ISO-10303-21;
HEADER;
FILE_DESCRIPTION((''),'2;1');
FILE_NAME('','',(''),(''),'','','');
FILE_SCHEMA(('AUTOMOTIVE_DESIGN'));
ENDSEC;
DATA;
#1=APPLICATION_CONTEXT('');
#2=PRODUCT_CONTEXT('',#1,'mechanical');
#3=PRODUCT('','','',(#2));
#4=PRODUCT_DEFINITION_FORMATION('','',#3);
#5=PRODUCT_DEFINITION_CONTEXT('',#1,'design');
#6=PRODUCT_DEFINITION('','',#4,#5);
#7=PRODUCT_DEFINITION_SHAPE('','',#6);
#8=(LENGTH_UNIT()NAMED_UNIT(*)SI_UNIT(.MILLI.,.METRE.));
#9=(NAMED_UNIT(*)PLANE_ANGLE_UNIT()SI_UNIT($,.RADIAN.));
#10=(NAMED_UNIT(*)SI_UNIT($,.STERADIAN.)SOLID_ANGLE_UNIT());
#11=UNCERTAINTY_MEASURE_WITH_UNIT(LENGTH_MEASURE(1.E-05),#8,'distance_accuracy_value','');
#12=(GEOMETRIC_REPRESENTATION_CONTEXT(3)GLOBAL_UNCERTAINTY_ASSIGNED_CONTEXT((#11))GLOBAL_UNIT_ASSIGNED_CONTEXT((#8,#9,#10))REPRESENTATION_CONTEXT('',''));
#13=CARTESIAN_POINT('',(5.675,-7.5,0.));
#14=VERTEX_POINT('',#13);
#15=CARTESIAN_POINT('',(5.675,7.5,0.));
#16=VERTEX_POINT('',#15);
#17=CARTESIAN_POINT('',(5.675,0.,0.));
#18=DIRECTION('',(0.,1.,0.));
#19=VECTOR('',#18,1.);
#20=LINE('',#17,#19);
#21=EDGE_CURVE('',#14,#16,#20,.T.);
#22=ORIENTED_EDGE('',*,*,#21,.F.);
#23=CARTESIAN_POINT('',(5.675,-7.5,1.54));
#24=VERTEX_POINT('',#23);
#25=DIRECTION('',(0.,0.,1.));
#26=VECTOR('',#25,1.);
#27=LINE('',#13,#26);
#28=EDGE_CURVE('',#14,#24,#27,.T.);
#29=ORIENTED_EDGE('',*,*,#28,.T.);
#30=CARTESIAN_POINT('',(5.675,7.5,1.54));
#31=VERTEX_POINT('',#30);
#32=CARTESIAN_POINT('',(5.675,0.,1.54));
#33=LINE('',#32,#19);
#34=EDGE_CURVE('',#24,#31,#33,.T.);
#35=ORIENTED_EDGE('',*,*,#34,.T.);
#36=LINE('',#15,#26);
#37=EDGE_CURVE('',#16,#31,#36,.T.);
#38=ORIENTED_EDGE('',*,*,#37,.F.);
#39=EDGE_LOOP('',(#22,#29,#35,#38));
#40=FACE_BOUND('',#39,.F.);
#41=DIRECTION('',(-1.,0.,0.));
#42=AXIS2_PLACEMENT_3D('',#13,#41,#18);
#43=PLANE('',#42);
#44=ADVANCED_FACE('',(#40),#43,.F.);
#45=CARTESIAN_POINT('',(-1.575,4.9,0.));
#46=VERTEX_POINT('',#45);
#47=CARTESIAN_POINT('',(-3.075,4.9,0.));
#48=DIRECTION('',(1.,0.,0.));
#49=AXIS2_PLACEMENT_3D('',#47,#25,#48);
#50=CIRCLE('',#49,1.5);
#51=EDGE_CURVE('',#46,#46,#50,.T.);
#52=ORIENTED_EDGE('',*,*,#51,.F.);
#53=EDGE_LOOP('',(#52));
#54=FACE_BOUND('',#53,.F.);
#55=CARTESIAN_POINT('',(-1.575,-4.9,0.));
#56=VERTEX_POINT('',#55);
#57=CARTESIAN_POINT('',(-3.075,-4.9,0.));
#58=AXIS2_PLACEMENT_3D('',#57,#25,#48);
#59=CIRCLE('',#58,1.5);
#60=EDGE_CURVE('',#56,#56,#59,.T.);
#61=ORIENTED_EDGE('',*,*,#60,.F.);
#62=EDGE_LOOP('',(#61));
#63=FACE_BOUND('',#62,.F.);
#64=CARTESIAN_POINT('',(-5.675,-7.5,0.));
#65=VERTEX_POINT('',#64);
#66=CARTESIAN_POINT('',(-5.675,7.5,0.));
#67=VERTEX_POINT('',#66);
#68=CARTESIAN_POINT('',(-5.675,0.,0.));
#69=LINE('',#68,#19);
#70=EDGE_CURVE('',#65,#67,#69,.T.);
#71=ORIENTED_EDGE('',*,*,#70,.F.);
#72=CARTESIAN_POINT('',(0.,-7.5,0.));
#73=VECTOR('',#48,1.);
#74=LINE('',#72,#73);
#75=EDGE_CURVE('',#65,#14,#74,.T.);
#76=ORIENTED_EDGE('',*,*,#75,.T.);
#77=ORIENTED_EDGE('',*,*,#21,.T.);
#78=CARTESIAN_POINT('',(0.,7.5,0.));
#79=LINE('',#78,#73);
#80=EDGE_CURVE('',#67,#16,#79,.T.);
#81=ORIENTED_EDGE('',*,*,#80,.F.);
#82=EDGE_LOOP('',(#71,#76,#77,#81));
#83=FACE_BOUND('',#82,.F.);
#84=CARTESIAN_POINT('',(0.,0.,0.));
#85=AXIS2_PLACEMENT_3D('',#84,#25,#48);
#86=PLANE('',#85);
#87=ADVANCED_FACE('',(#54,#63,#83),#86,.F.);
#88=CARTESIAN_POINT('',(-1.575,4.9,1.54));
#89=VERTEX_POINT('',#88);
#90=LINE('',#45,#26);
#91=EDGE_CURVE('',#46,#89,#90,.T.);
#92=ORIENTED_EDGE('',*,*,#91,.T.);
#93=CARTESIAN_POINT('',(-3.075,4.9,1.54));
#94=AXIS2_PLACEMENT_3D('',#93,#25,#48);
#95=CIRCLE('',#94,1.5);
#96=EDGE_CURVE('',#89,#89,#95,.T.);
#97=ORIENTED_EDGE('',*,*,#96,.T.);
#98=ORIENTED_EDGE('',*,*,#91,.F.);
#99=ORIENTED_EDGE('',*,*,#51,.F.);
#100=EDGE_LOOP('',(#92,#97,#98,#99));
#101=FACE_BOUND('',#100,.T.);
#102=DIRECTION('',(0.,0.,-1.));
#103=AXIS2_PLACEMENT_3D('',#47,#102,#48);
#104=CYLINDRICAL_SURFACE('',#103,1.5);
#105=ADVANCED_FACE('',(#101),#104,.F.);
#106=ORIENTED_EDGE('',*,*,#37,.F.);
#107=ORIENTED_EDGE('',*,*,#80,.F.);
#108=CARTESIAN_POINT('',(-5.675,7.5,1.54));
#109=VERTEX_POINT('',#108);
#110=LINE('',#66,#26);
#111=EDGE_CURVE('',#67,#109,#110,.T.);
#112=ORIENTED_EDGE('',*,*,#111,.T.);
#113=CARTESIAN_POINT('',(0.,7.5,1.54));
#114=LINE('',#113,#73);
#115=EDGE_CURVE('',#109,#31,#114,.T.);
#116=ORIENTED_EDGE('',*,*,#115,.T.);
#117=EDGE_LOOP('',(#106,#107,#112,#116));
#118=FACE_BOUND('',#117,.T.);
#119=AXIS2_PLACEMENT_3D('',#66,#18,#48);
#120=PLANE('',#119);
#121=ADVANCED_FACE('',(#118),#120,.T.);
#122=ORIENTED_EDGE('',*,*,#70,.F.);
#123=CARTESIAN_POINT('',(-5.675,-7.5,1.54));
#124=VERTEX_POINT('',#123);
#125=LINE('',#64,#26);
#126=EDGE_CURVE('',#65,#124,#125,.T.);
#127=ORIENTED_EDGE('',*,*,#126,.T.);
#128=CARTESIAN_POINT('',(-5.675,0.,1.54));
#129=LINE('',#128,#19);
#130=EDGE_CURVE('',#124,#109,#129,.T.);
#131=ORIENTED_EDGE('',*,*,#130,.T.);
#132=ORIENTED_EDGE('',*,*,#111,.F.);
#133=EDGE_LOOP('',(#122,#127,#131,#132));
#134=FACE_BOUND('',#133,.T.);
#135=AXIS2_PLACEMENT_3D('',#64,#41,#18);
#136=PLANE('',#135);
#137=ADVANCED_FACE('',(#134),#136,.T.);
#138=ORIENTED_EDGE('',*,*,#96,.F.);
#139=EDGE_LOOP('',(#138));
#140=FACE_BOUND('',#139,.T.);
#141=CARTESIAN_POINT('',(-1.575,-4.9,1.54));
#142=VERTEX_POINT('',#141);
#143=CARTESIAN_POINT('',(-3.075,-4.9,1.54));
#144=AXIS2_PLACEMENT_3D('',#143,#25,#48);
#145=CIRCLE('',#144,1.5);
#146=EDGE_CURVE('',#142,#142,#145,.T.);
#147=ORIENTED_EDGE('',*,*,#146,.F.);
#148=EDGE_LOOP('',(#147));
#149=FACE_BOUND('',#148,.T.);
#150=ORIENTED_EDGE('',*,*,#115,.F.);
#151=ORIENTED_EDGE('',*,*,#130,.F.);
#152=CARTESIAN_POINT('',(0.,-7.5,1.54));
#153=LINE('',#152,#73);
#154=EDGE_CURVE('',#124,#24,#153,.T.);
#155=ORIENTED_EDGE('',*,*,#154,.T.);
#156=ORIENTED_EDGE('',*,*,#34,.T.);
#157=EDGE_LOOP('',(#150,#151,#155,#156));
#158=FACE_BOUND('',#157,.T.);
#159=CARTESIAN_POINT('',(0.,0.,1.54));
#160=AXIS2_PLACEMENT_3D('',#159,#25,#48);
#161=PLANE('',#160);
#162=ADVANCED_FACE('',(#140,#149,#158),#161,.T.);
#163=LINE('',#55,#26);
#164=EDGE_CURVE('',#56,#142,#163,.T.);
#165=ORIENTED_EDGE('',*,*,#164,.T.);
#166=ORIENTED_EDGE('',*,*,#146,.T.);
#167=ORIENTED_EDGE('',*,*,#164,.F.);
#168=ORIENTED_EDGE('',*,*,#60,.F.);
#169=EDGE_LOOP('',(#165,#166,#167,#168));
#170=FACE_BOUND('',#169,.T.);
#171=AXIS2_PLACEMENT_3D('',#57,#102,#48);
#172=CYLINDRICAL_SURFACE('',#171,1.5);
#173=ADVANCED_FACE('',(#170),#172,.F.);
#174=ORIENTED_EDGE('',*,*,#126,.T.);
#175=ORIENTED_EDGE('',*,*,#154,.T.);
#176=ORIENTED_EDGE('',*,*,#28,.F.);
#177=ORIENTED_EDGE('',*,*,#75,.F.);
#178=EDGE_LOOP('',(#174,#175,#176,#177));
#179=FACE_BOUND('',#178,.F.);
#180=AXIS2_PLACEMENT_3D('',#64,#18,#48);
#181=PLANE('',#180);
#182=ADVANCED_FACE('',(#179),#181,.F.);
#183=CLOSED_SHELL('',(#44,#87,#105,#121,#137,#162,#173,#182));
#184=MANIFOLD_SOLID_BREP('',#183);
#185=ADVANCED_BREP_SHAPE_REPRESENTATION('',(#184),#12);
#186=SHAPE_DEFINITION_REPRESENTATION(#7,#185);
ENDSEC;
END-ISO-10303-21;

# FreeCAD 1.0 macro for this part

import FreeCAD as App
import Part
import Sketcher

V = App.Vector


def add_polygon(sketch, points):
    """Adds a closed chain of lines whose ends are joined by coincident constraints."""
    first, n = sketch.GeometryCount, len(points)
    for a, b in zip(points, points[1:] + points[:1]):
        sketch.addGeometry(Part.LineSegment(App.Vector(*a, 0), App.Vector(*b, 0)), False)
    for i in range(n):
        sketch.addConstraint(Sketcher.Constraint("Coincident", first + i, 2, first + (i + 1) % n, 1))

doc = App.newDocument("Part")
body = doc.addObject("PartDesign::Body", "Body")

# Sketch on XY plane
sketch1 = doc.addObject("Sketcher::SketchObject", "Sketch")
body.addObject(sketch1)
sketch1.AttachmentSupport = (doc.XY_Plane, [""])
sketch1.MapMode = "FlatFace"
add_polygon(sketch1, [(-5.7, 7.5), (-5.7, -7.5), (5.7, -7.5), (5.7, 7.5)])  # lines 0-3
sketch1.addGeometry(Part.Circle(V(-3.1, -4.9, 0), V(0, 0, 1), 1.5), False)  # 4
sketch1.addGeometry(Part.Circle(V(-3.1, 4.9, 0), V(0, 0, 1), 1.5), False)  # 5
sketch1.addConstraint([
    Sketcher.Constraint("Vertical", 0),
    Sketcher.Constraint("Horizontal", 1),
    Sketcher.Constraint("Vertical", 2),
    Sketcher.Constraint("Horizontal", 3),
    Sketcher.Constraint("Equal", 4, 5),
    Sketcher.Constraint("Symmetric", 0, 2, 2, 2, -1, 1),
    Sketcher.Constraint("Symmetric", 4, 3, 5, 3, -1),
    Sketcher.Constraint("Diameter", 4, 3.0),
    Sketcher.Constraint("DistanceY", 0, 2, 0, 1, 15.0),
    Sketcher.Constraint("DistanceX", 1, 1, 1, 2, 11.35),
    Sketcher.Constraint("DistanceY", 4, 3, -1, 1, 4.9),
    Sketcher.Constraint("DistanceX", 0, 2, 4, 3, 2.6),
])
pad1 = doc.addObject("PartDesign::Pad", "Pad")
body.addObject(pad1)
pad1.Profile = sketch1
pad1.Length = 1.54

doc.recompute()
